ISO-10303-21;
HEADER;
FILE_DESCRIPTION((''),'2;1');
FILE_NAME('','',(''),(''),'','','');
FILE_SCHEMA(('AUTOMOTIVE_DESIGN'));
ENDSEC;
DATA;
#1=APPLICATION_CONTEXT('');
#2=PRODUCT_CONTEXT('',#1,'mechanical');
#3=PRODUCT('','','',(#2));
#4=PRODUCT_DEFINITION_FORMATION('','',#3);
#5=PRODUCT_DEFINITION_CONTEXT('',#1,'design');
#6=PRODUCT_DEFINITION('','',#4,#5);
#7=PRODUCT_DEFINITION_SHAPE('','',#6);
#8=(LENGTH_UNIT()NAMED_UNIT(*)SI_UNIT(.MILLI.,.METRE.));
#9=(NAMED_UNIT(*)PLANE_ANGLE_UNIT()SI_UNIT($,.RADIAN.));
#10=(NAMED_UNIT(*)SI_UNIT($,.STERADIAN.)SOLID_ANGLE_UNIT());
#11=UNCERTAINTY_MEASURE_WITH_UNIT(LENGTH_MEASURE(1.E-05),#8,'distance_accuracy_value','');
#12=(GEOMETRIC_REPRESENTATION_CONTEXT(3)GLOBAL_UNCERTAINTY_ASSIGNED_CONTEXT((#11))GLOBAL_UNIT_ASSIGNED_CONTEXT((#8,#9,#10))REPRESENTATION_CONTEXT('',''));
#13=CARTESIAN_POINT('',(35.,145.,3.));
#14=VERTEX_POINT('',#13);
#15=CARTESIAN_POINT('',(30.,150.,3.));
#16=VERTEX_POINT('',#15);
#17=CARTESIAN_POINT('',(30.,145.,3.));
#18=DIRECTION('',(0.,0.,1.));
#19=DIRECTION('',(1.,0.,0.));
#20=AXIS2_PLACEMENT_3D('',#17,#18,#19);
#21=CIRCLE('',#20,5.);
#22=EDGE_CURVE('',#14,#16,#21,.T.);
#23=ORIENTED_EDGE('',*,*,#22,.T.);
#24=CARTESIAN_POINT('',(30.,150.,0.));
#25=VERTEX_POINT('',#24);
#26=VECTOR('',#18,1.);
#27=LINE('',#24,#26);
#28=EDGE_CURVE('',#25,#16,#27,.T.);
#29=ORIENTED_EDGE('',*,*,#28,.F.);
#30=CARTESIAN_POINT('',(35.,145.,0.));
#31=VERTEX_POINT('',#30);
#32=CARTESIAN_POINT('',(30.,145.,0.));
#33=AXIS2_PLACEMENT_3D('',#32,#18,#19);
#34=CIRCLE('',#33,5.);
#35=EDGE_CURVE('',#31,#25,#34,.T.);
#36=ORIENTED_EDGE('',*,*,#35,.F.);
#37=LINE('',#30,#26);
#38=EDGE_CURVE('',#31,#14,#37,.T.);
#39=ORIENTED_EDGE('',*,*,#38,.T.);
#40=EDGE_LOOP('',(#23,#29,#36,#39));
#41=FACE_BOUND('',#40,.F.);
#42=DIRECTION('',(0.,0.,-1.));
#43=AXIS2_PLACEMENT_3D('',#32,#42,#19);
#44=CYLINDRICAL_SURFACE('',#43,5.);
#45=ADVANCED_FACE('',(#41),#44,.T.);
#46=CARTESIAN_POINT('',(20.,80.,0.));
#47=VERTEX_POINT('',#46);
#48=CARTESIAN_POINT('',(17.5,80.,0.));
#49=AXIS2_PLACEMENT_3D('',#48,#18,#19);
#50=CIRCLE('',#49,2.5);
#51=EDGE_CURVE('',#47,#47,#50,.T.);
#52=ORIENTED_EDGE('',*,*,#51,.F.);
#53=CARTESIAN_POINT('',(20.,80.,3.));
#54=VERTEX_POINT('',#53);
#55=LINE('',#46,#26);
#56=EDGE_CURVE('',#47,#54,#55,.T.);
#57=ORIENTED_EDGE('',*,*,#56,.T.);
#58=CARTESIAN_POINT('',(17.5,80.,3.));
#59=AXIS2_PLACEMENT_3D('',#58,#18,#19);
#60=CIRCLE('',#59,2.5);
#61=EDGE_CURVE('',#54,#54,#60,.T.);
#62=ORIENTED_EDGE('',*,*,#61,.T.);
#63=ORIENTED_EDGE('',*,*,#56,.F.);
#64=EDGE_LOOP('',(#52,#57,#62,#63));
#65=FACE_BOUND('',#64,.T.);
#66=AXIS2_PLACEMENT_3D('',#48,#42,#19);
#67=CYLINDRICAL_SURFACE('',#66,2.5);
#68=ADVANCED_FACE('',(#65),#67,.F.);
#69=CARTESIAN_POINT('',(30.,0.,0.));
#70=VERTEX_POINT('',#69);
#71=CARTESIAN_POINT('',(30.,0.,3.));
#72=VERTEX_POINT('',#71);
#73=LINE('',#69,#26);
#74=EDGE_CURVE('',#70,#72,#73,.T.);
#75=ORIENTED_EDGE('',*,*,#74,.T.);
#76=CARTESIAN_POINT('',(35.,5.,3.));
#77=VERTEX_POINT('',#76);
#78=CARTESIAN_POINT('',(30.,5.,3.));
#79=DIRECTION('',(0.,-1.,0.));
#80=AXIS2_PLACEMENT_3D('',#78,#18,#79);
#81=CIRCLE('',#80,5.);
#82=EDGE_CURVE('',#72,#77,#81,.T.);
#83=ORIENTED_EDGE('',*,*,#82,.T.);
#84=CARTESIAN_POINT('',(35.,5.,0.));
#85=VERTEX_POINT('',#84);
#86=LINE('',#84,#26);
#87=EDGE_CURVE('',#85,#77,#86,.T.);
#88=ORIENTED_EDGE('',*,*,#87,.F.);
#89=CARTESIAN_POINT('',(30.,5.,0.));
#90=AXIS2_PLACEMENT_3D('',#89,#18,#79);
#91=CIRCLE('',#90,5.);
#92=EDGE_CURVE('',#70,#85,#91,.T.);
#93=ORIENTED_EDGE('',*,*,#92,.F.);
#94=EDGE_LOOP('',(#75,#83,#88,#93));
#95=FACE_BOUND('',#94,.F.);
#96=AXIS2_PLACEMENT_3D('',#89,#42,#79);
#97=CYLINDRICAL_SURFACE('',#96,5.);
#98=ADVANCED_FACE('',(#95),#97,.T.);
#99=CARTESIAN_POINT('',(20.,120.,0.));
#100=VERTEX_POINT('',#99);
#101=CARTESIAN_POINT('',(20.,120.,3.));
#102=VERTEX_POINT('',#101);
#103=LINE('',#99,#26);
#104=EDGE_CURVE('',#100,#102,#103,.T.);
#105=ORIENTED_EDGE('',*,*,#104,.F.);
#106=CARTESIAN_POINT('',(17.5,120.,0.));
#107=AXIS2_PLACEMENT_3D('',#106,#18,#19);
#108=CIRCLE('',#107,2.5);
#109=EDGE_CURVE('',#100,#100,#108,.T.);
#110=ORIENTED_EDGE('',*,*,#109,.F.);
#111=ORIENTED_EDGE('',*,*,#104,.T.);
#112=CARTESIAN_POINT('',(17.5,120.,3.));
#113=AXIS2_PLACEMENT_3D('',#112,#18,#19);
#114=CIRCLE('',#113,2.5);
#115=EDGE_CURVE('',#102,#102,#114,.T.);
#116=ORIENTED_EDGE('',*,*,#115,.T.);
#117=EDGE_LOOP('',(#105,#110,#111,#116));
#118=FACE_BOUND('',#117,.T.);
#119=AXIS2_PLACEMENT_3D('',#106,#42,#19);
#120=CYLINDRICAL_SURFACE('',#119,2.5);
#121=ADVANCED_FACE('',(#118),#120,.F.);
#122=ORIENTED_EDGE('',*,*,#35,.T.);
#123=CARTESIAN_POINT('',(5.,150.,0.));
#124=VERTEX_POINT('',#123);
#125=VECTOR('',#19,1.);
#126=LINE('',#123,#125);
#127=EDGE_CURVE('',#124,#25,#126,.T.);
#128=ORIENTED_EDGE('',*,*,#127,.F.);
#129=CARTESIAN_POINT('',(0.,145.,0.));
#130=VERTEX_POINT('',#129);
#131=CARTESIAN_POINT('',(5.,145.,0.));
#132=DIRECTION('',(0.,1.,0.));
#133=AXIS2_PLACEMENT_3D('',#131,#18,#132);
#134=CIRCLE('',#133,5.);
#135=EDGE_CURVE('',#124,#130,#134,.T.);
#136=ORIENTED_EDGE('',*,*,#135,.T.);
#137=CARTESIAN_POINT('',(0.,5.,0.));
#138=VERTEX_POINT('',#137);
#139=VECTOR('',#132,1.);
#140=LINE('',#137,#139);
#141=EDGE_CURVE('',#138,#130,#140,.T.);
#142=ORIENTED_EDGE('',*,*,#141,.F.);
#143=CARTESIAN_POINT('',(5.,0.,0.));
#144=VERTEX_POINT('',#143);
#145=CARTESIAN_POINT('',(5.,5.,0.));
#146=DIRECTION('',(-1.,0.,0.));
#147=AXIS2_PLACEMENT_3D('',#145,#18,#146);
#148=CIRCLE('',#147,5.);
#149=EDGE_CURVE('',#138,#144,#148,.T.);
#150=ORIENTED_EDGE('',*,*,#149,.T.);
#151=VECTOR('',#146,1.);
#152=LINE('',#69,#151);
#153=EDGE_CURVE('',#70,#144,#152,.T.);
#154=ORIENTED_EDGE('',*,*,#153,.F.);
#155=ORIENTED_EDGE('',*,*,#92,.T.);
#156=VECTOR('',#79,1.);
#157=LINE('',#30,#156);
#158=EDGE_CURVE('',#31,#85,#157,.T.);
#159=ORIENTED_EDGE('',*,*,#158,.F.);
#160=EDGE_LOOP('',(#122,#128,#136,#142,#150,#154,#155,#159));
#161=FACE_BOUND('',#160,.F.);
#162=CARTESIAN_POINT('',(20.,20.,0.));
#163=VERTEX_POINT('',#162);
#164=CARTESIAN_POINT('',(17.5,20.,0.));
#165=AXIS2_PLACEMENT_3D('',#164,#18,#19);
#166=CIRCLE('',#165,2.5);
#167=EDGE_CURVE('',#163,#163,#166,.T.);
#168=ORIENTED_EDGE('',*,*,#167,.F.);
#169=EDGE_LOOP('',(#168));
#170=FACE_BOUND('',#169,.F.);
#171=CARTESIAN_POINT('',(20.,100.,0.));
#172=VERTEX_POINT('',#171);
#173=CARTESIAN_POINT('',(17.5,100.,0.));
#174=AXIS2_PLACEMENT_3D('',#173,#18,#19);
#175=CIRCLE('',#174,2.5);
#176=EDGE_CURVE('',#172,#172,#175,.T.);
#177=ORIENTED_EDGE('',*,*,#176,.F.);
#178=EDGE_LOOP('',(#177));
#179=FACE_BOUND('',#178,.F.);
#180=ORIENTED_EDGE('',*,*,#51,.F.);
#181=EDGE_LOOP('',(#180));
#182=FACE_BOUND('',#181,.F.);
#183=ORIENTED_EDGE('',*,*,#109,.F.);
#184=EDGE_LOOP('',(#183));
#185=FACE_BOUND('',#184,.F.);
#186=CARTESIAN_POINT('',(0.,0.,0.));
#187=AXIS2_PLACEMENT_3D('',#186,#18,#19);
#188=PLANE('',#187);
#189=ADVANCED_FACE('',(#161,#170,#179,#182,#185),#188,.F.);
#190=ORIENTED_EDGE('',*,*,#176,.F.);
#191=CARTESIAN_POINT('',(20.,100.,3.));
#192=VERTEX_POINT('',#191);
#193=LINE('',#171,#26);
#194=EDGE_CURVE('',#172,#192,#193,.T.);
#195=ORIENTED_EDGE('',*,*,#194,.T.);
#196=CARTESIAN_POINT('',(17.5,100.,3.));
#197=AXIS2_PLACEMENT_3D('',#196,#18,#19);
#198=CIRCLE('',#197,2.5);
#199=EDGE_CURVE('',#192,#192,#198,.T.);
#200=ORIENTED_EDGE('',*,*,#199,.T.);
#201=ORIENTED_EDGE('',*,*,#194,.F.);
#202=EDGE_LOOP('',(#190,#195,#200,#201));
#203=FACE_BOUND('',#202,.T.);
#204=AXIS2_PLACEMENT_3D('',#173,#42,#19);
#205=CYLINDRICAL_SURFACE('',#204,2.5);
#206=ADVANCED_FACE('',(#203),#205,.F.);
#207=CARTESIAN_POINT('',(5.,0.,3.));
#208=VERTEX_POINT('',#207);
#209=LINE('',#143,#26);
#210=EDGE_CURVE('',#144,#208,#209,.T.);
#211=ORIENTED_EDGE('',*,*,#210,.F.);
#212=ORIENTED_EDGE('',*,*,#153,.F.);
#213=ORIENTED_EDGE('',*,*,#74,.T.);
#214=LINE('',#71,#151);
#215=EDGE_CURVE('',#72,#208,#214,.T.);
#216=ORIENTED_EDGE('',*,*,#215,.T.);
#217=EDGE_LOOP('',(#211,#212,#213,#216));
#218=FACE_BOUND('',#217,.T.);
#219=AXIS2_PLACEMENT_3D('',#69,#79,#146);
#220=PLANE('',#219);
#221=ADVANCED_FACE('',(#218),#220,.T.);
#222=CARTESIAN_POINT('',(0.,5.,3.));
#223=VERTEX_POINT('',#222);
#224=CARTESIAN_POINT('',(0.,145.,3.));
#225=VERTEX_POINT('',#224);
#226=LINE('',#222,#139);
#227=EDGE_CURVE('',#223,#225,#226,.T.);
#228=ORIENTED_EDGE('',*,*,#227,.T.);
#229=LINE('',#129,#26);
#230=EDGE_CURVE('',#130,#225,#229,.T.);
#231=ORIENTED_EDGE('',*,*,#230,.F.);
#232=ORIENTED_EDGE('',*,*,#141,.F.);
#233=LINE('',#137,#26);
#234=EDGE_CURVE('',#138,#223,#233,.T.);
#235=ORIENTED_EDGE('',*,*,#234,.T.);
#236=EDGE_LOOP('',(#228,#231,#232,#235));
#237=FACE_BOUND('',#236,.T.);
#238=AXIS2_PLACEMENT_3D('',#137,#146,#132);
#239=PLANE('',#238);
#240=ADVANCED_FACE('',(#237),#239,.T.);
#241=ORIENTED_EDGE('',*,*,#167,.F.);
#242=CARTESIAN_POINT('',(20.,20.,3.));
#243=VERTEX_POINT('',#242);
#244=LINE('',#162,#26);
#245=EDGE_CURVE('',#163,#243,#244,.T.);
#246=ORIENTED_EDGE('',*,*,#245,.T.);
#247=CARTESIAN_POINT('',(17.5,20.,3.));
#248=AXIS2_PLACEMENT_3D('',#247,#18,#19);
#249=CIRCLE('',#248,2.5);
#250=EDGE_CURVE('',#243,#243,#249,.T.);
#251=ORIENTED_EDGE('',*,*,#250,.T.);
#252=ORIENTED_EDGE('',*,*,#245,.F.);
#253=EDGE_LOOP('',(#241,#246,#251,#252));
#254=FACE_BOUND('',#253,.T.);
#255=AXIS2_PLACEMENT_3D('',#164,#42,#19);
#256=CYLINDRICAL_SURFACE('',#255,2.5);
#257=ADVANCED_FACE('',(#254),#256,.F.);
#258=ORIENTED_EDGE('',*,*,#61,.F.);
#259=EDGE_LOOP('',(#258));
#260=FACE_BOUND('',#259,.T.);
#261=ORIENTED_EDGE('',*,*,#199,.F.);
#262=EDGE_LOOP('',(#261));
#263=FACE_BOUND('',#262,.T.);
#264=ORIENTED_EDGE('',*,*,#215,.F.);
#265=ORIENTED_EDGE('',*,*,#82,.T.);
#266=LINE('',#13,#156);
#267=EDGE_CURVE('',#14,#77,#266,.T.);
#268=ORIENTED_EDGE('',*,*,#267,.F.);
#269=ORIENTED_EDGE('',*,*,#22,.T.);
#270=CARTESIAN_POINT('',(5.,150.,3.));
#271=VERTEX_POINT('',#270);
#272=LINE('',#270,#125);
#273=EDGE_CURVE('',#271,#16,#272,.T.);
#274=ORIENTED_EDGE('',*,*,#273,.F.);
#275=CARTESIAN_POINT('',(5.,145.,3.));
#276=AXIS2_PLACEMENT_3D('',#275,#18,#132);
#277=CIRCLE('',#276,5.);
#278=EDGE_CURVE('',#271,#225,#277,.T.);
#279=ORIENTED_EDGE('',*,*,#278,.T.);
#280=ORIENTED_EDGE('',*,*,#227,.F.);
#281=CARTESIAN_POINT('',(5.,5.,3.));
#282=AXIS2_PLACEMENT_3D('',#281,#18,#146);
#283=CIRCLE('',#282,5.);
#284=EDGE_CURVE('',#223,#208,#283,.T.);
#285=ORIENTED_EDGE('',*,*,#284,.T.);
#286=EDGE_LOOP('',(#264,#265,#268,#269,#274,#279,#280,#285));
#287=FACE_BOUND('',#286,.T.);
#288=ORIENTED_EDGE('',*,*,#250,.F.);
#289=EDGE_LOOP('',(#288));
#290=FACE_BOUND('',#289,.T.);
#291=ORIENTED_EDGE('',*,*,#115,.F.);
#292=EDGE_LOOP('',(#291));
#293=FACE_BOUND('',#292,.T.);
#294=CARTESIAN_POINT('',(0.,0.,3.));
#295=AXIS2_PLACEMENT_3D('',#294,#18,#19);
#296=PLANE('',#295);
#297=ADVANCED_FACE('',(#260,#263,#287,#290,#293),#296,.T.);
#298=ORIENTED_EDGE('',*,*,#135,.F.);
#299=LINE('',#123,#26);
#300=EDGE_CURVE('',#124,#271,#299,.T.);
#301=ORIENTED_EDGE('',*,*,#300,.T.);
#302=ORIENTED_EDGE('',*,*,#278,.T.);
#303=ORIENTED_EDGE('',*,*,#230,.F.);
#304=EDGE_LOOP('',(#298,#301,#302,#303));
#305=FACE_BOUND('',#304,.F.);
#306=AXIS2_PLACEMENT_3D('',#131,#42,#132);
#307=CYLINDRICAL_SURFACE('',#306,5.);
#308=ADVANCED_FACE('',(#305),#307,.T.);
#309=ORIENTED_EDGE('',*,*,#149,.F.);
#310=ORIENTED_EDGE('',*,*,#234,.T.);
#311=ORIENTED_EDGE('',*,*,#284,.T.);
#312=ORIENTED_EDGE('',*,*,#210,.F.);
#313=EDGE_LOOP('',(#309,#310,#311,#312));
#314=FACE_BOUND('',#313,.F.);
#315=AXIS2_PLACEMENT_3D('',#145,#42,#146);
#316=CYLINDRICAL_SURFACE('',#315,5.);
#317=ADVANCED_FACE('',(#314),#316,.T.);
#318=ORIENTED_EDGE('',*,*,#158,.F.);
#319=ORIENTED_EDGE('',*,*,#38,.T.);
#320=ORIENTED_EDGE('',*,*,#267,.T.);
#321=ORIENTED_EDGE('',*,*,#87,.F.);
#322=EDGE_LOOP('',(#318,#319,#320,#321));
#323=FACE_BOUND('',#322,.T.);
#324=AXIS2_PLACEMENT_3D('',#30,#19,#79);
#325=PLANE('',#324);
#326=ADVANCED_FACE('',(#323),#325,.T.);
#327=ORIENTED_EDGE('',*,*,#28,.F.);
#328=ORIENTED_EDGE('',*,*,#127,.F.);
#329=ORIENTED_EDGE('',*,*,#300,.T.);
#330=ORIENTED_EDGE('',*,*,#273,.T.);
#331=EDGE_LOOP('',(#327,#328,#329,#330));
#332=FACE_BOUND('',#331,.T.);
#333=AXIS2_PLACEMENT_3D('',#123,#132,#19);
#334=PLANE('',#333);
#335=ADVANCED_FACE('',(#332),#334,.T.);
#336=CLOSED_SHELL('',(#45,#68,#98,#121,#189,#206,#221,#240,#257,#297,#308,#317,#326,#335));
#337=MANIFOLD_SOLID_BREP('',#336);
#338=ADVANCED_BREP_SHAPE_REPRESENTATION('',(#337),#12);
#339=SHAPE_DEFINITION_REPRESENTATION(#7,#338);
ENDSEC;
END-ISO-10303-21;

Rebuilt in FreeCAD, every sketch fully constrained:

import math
import FreeCAD as App
import Part
import Sketcher

V = App.Vector
Q = App.Units.Quantity

doc = App.newDocument("Part")
body = doc.addObject("PartDesign::Body", "Body")

sketch1 = body.newObject("Sketcher::SketchObject", "Sketch")
sketch1.AttachmentSupport = (doc.getObject("XY_Plane"), [""])
sketch1.MapMode = "FlatFace"
sketch1.addGeometry(Part.LineSegment(V(0, 145, 0), V(0, 5, 0)), False)
sketch1.addGeometry(Part.ArcOfCircle(Part.Circle(V(5, 5, 0), V(0, 0, 1), 5), math.radians(180), math.radians(270)), False)
sketch1.addGeometry(Part.LineSegment(V(5, 0, 0), V(30, 0, 0)), False)
sketch1.addGeometry(Part.ArcOfCircle(Part.Circle(V(30, 5, 0), V(0, 0, 1), 5), math.radians(-90), math.radians(0)), False)
sketch1.addGeometry(Part.LineSegment(V(35, 5, 0), V(35, 145, 0)), False)
sketch1.addGeometry(Part.ArcOfCircle(Part.Circle(V(30, 145, 0), V(0, 0, 1), 5), math.radians(0), math.radians(90)), False)
sketch1.addGeometry(Part.LineSegment(V(30, 150, 0), V(5, 150, 0)), False)
sketch1.addGeometry(Part.ArcOfCircle(Part.Circle(V(5, 145, 0), V(0, 0, 1), 5), math.radians(90), math.radians(180)), False)
sketch1.addGeometry(Part.Circle(V(17.5, 20, 0), V(0, 0, 1), 2.5), False)
sketch1.addGeometry(Part.Circle(V(17.5, 80, 0), V(0, 0, 1), 2.5), False)
sketch1.addGeometry(Part.Circle(V(17.5, 100, 0), V(0, 0, 1), 2.5), False)
sketch1.addGeometry(Part.Circle(V(17.5, 120, 0), V(0, 0, 1), 2.5), False)
sketch1.addConstraint(Sketcher.Constraint("Tangent", 0, 2, 1, 1))
sketch1.addConstraint(Sketcher.Constraint("Tangent", 1, 2, 2, 1))
sketch1.addConstraint(Sketcher.Constraint("Tangent", 2, 2, 3, 1))
sketch1.addConstraint(Sketcher.Constraint("Tangent", 3, 2, 4, 1))
sketch1.addConstraint(Sketcher.Constraint("Tangent", 4, 2, 5, 1))
sketch1.addConstraint(Sketcher.Constraint("Tangent", 5, 2, 6, 1))
sketch1.addConstraint(Sketcher.Constraint("Tangent", 6, 2, 7, 1))
sketch1.addConstraint(Sketcher.Constraint("Tangent", 7, 2, 0, 1))
sketch1.addConstraint(Sketcher.Constraint("Vertical", 0))
sketch1.addConstraint(Sketcher.Constraint("Horizontal", 2))
sketch1.addConstraint(Sketcher.Constraint("Vertical", 4))
sketch1.addConstraint(Sketcher.Constraint("Horizontal", 6))
sketch1.addConstraint(Sketcher.Constraint("Equal", 1, 3))
sketch1.addConstraint(Sketcher.Constraint("Equal", 3, 5))
sketch1.addConstraint(Sketcher.Constraint("Equal", 5, 7))
sketch1.addConstraint(Sketcher.Constraint("Equal", 8, 9))
sketch1.addConstraint(Sketcher.Constraint("Equal", 9, 10))
sketch1.addConstraint(Sketcher.Constraint("Equal", 10, 11))
sketch1.addConstraint(Sketcher.Constraint("PointOnObject", 0, 2, -2))
sketch1.addConstraint(Sketcher.Constraint("PointOnObject", 1, 2, -1))
sketch1.addConstraint(Sketcher.Constraint("Vertical", 8, 3, 9, 3))
sketch1.addConstraint(Sketcher.Constraint("Vertical", 9, 3, 10, 3))
sketch1.addConstraint(Sketcher.Constraint("Vertical", 10, 3, 11, 3))
sketch1.addConstraint(Sketcher.Constraint("Diameter", 8, Q("5 mm")))
sketch1.addConstraint(Sketcher.Constraint("Radius", 1, Q("5 mm")))
sketch1.addConstraint(Sketcher.Constraint("DistanceX", 2, 1, 2, 2, Q("25 mm")))
sketch1.addConstraint(Sketcher.Constraint("DistanceY", 0, 2, 0, 1, Q("140 mm")))
sketch1.addConstraint(Sketcher.Constraint("DistanceY", -1, 1, 8, 3, Q("20 mm")))
sketch1.addConstraint(Sketcher.Constraint("DistanceY", -1, 1, 9, 3, Q("80 mm")))
sketch1.addConstraint(Sketcher.Constraint("DistanceY", -1, 1, 10, 3, Q("100 mm")))
sketch1.addConstraint(Sketcher.Constraint("DistanceY", -1, 1, 11, 3, Q("120 mm")))
sketch1.addConstraint(Sketcher.Constraint("DistanceX", -1, 1, 8, 3, Q("17.5 mm")))
pad1 = body.newObject("PartDesign::Pad", "Pad")
pad1.Profile = sketch1
pad1.Length = 3

doc.recompute()
